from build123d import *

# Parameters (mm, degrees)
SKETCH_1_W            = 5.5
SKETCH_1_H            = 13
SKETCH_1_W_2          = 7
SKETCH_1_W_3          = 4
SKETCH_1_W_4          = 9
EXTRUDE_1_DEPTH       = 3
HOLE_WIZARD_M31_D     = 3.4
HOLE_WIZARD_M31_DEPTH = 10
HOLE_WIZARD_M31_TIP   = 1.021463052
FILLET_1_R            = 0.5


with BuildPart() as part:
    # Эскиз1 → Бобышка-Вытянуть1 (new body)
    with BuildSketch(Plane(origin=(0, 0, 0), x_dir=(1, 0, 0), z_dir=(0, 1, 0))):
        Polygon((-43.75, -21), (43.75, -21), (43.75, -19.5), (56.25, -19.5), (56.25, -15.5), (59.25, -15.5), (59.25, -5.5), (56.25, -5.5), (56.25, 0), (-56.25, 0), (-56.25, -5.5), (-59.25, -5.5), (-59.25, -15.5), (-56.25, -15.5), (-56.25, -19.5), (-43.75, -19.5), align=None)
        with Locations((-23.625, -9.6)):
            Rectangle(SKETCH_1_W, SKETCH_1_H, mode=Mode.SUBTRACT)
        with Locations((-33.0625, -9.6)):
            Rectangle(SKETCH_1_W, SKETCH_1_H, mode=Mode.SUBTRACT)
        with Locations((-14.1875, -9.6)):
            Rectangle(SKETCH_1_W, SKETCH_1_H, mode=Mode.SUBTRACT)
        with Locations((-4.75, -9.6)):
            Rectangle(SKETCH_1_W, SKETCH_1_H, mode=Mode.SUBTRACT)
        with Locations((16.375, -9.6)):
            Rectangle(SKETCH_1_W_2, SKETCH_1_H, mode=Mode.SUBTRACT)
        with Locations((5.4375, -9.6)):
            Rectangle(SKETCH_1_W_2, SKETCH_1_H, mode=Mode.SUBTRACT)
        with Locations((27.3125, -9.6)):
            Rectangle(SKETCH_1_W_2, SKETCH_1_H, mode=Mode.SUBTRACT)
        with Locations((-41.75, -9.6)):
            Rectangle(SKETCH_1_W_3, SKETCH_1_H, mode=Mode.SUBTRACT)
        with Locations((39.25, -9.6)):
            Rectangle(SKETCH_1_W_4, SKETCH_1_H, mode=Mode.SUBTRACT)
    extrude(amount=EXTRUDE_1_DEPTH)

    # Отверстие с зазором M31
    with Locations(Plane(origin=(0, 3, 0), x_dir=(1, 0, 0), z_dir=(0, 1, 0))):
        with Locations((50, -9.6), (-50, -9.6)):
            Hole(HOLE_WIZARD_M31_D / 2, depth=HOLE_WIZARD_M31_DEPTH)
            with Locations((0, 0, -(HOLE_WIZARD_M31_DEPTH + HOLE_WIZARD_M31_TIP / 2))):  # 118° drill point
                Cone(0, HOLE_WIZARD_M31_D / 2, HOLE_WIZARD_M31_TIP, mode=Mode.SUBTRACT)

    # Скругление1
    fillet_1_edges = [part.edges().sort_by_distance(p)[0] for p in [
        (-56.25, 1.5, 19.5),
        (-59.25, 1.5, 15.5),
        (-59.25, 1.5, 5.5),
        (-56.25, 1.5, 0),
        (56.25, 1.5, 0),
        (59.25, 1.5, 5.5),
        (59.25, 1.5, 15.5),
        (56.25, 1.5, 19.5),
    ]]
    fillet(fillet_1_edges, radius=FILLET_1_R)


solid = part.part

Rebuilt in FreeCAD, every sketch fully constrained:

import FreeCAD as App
import Part
import Sketcher


def edges_at(feature, points):
    """Names of the edges that pass closest to the given points."""
    edges = feature.Shape.Edges
    near = lambda p: min(range(len(edges)), key=lambda i: edges[i].distToShape(Part.Vertex(*p))[0])
    return sorted({f"Edge{near(p) + 1}" for p in points})


def add_polygon(sketch, points):
    """Adds a closed chain of lines whose ends are joined by coincident constraints."""
    first, n = sketch.GeometryCount, len(points)
    for a, b in zip(points, points[1:] + points[:1]):
        sketch.addGeometry(Part.LineSegment(App.Vector(*a, 0), App.Vector(*b, 0)), False)
    for i in range(n):
        sketch.addConstraint(Sketcher.Constraint("Coincident", first + i, 2, first + (i + 1) % n, 1))

doc = App.newDocument("Part")
body = doc.addObject("PartDesign::Body", "Body")

sketch1 = body.newObject("Sketcher::SketchObject", "Sketch")
sketch1.AttachmentSupport = (doc.getObject("XZ_Plane"), [""])
sketch1.MapMode = "FlatFace"
add_polygon(sketch1, [(-43.75, 21), (43.75, 21), (43.75, 19.5), (56.25, 19.5), (56.25, 15.5), (59.25, 15.5), (59.25, 5.5), (56.25, 5.5), (56.25, 0), (-56.25, 0), (-56.25, 5.5), (-59.25, 5.5), (-59.25, 15.5), (-56.25, 15.5), (-56.25, 19.5), (-43.75, 19.5)])
add_polygon(sketch1, [(-39.75, 16.1), (-43.75, 16.1), (-43.75, 3.1), (-39.75, 3.1)])
add_polygon(sketch1, [(-30.3125, 16.1), (-35.8125, 16.1), (-35.8125, 3.1), (-30.3125, 3.1)])
add_polygon(sketch1, [(-20.875, 16.1), (-26.375, 16.1), (-26.375, 3.1), (-20.875, 3.1)])
add_polygon(sketch1, [(-11.4375, 16.1), (-16.9375, 16.1), (-16.9375, 3.1), (-11.4375, 3.1)])
add_polygon(sketch1, [(-2, 16.1), (-7.5, 16.1), (-7.5, 3.1), (-2, 3.1)])
add_polygon(sketch1, [(8.9375, 16.1), (1.9375, 16.1), (1.9375, 3.1), (8.9375, 3.1)])
add_polygon(sketch1, [(19.875, 16.1), (12.875, 16.1), (12.875, 3.1), (19.875, 3.1)])
add_polygon(sketch1, [(30.8125, 16.1), (23.8125, 16.1), (23.8125, 3.1), (30.8125, 3.1)])
add_polygon(sketch1, [(43.75, 16.1), (34.75, 16.1), (34.75, 3.1), (43.75, 3.1)])
sketch1.addConstraint(Sketcher.Constraint("Horizontal", 0))
sketch1.addConstraint(Sketcher.Constraint("Vertical", 1))
sketch1.addConstraint(Sketcher.Constraint("Horizontal", 2))
sketch1.addConstraint(Sketcher.Constraint("Vertical", 3))
sketch1.addConstraint(Sketcher.Constraint("Horizontal", 4))
sketch1.addConstraint(Sketcher.Constraint("Vertical", 5))
sketch1.addConstraint(Sketcher.Constraint("Horizontal", 6))
sketch1.addConstraint(Sketcher.Constraint("Vertical", 7))
sketch1.addConstraint(Sketcher.Constraint("Horizontal", 8))
sketch1.addConstraint(Sketcher.Constraint("Vertical", 9))
sketch1.addConstraint(Sketcher.Constraint("Horizontal", 10))
sketch1.addConstraint(Sketcher.Constraint("Vertical", 11))
sketch1.addConstraint(Sketcher.Constraint("Horizontal", 12))
sketch1.addConstraint(Sketcher.Constraint("Vertical", 13))
sketch1.addConstraint(Sketcher.Constraint("Horizontal", 14))
sketch1.addConstraint(Sketcher.Constraint("Vertical", 15))
sketch1.addConstraint(Sketcher.Constraint("Horizontal", 16))
sketch1.addConstraint(Sketcher.Constraint("Vertical", 17))
sketch1.addConstraint(Sketcher.Constraint("Horizontal", 18))
sketch1.addConstraint(Sketcher.Constraint("Vertical", 19))
sketch1.addConstraint(Sketcher.Constraint("Horizontal", 20))
sketch1.addConstraint(Sketcher.Constraint("Vertical", 21))
sketch1.addConstraint(Sketcher.Constraint("Horizontal", 22))
sketch1.addConstraint(Sketcher.Constraint("Vertical", 23))
sketch1.addConstraint(Sketcher.Constraint("Horizontal", 24))
sketch1.addConstraint(Sketcher.Constraint("Vertical", 25))
sketch1.addConstraint(Sketcher.Constraint("Horizontal", 26))
sketch1.addConstraint(Sketcher.Constraint("Vertical", 27))
sketch1.addConstraint(Sketcher.Constraint("Horizontal", 28))
sketch1.addConstraint(Sketcher.Constraint("Vertical", 29))
sketch1.addConstraint(Sketcher.Constraint("Horizontal", 30))
sketch1.addConstraint(Sketcher.Constraint("Vertical", 31))
sketch1.addConstraint(Sketcher.Constraint("Horizontal", 32))
sketch1.addConstraint(Sketcher.Constraint("Vertical", 33))
sketch1.addConstraint(Sketcher.Constraint("Horizontal", 34))
sketch1.addConstraint(Sketcher.Constraint("Vertical", 35))
sketch1.addConstraint(Sketcher.Constraint("Horizontal", 36))
sketch1.addConstraint(Sketcher.Constraint("Vertical", 37))
sketch1.addConstraint(Sketcher.Constraint("Horizontal", 38))
sketch1.addConstraint(Sketcher.Constraint("Vertical", 39))
sketch1.addConstraint(Sketcher.Constraint("Horizontal", 40))
sketch1.addConstraint(Sketcher.Constraint("Vertical", 41))
sketch1.addConstraint(Sketcher.Constraint("Horizontal", 42))
sketch1.addConstraint(Sketcher.Constraint("Vertical", 43))
sketch1.addConstraint(Sketcher.Constraint("Horizontal", 44))
sketch1.addConstraint(Sketcher.Constraint("Vertical", 45))
sketch1.addConstraint(Sketcher.Constraint("Horizontal", 46))
sketch1.addConstraint(Sketcher.Constraint("Vertical", 47))
sketch1.addConstraint(Sketcher.Constraint("Horizontal", 48))
sketch1.addConstraint(Sketcher.Constraint("Vertical", 49))
sketch1.addConstraint(Sketcher.Constraint("Horizontal", 50))
sketch1.addConstraint(Sketcher.Constraint("Vertical", 51))
sketch1.addConstraint(Sketcher.Constraint("Symmetric", 7, 2, 8, 2, -1, 1))
sketch1.addConstraint(Sketcher.Constraint("Symmetric", 5, 2, 10, 2, -2))
sketch1.addConstraint(Sketcher.Constraint("Symmetric", 3, 2, 12, 2, -2))
sketch1.addConstraint(Sketcher.Constraint("Symmetric", 1, 2, 14, 2, -2))
sketch1.addConstraint(Sketcher.Constraint("Symmetric", 17, 2, 50, 2, -2))
sketch1.addConstraint(Sketcher.Constraint("Horizontal", 19, 2, 20, 2))
sketch1.addConstraint(Sketcher.Constraint("Horizontal", 18, 2, 21, 2))
sketch1.addConstraint(Sketcher.Constraint("Horizontal", 23, 2, 24, 2))
sketch1.addConstraint(Sketcher.Constraint("Horizontal", 22, 2, 25, 2))
sketch1.addConstraint(Sketcher.Constraint("Horizontal", 27, 2, 28, 2))
sketch1.addConstraint(Sketcher.Constraint("Horizontal", 26, 2, 29, 2))
sketch1.addConstraint(Sketcher.Constraint("Horizontal", 31, 2, 32, 2))
sketch1.addConstraint(Sketcher.Constraint("Horizontal", 30, 2, 33, 2))
sketch1.addConstraint(Sketcher.Constraint("Horizontal", 35, 2, 36, 2))
sketch1.addConstraint(Sketcher.Constraint("Horizontal", 34, 2, 37, 2))
sketch1.addConstraint(Sketcher.Constraint("Horizontal", 39, 2, 40, 2))
sketch1.addConstraint(Sketcher.Constraint("Horizontal", 38, 2, 41, 2))
sketch1.addConstraint(Sketcher.Constraint("Horizontal", 43, 2, 44, 2))
sketch1.addConstraint(Sketcher.Constraint("Horizontal", 42, 2, 45, 2))
sketch1.addConstraint(Sketcher.Constraint("Horizontal", 47, 2, 48, 2))
sketch1.addConstraint(Sketcher.Constraint("Vertical", 3, 2, 6, 2))
sketch1.addConstraint(Sketcher.Constraint("Vertical", 15, 2, 16, 2))
sketch1.addConstraint(Sketcher.Constraint("Equal", 22, 24))
sketch1.addConstraint(Sketcher.Constraint("Equal", 26, 28))
sketch1.addConstraint(Sketcher.Constraint("Equal", 30, 32))
sketch1.addConstraint(Sketcher.Constraint("Equal", 38, 40))
sketch1.addConstraint(Sketcher.Constraint("Equal", 42, 44))
sketch1.addConstraint(Sketcher.Constraint("Equal", 18, 3))
sketch1.addConstraint(Sketcher.Constraint("Equal", 34, 7))
sketch1.addConstraint(Sketcher.Constraint("DistanceX", 4, 1, 4, 2, 3.0))
sketch1.addConstraint(Sketcher.Constraint("DistanceX", 16, 2, 16, 1, 4.0))
sketch1.addConstraint(Sketcher.Constraint("DistanceX", 36, 2, 36, 1, 7.0))
sketch1.addConstraint(Sketcher.Constraint("DistanceX", 48, 2, 48, 1, 9.0))
sketch1.addConstraint(Sketcher.Constraint("DistanceY", 5, 2, 5, 1, 10.0))
sketch1.addConstraint(Sketcher.Constraint("DistanceY", 17, 2, 17, 1, 13.0))
sketch1.addConstraint(Sketcher.Constraint("DistanceX", 0, 1, 0, 2, 87.5))
sketch1.addConstraint(Sketcher.Constraint("DistanceX", 2, 1, 2, 2, 12.5))
sketch1.addConstraint(Sketcher.Constraint("DistanceX", 20, 2, 20, 1, 5.5))
sketch1.addConstraint(Sketcher.Constraint("DistanceY", 1, 2, 1, 1, 1.5))
sketch1.addConstraint(Sketcher.Constraint("DistanceX", 34, 2, -1, 1, 2.0))
sketch1.addConstraint(Sketcher.Constraint("DistanceY", -1, 1, 16, 2, 16.1))
sketch1.addConstraint(Sketcher.Constraint("DistanceX", 24, 2, -1, 1, 26.375))
sketch1.addConstraint(Sketcher.Constraint("DistanceX", -1, 1, 40, 2, 12.875))
sketch1.addConstraint(Sketcher.Constraint("DistanceX", 23, 2, 28, 2, 13.375))
sketch1.addConstraint(Sketcher.Constraint("DistanceX", 31, 2, 36, 2, 13.375))
sketch1.addConstraint(Sketcher.Constraint("DistanceX", 39, 2, 44, 2, 14.875))
sketch1.addConstraint(Sketcher.Constraint("DistanceX", 20, 2, -1, 1, 35.8125))
pad1 = body.newObject("PartDesign::Pad", "Pad")
pad1.Profile = sketch1
pad1.Length = 3
pad1.Reversed = True

sketch2 = body.newObject("Sketcher::SketchObject", "Sketch001")
sketch2.AttachmentSupport = (doc.getObject("XZ_Plane"), [""])
sketch2.MapMode = "FlatFace"
sketch2.AttachmentOffset = App.Placement(App.Vector(0, 0, -3), App.Rotation())
sketch2.addGeometry(Part.Circle(App.Vector(50, 9.6, 0), App.Vector(0, 0, 1), 1.7), False)
sketch2.addGeometry(Part.Circle(App.Vector(-50, 9.6, 0), App.Vector(0, 0, 1), 1.7), False)
sketch2.addConstraint(Sketcher.Constraint("Equal", 0, 1))
sketch2.addConstraint(Sketcher.Constraint("Symmetric", 0, 3, 1, 3, -2))
sketch2.addConstraint(Sketcher.Constraint("Diameter", 0, 3.4))
sketch2.addConstraint(Sketcher.Constraint("DistanceX", -1, 1, 0, 3, 50.0))
sketch2.addConstraint(Sketcher.Constraint("DistanceY", -1, 1, 0, 3, 9.6))
doc.recompute()
hole = body.newObject("PartDesign::Hole", "Hole")
hole.Profile = sketch2
hole.ThreadType = "None"
hole.Diameter = 3.4
hole.DepthType = "Dimension"
hole.Depth = 10
hole.DrillPoint = "Angled"
hole.DrillPointAngle = 118
hole.Reversed = True
doc.recompute()

fillet = body.newObject("PartDesign::Fillet", "Fillet")
fillet.Base = (hole, edges_at(hole, [
    (-56.25, 1.5, 19.5),
    (-59.25, 1.5, 15.5),
    (-59.25, 1.5, 5.5),
    (-56.25, 1.5, 0),
    (56.25, 1.5, 0),
    (59.25, 1.5, 5.5),
    (59.25, 1.5, 15.5),
    (56.25, 1.5, 19.5),
]))
fillet.Radius = 0.5

doc.recompute()
